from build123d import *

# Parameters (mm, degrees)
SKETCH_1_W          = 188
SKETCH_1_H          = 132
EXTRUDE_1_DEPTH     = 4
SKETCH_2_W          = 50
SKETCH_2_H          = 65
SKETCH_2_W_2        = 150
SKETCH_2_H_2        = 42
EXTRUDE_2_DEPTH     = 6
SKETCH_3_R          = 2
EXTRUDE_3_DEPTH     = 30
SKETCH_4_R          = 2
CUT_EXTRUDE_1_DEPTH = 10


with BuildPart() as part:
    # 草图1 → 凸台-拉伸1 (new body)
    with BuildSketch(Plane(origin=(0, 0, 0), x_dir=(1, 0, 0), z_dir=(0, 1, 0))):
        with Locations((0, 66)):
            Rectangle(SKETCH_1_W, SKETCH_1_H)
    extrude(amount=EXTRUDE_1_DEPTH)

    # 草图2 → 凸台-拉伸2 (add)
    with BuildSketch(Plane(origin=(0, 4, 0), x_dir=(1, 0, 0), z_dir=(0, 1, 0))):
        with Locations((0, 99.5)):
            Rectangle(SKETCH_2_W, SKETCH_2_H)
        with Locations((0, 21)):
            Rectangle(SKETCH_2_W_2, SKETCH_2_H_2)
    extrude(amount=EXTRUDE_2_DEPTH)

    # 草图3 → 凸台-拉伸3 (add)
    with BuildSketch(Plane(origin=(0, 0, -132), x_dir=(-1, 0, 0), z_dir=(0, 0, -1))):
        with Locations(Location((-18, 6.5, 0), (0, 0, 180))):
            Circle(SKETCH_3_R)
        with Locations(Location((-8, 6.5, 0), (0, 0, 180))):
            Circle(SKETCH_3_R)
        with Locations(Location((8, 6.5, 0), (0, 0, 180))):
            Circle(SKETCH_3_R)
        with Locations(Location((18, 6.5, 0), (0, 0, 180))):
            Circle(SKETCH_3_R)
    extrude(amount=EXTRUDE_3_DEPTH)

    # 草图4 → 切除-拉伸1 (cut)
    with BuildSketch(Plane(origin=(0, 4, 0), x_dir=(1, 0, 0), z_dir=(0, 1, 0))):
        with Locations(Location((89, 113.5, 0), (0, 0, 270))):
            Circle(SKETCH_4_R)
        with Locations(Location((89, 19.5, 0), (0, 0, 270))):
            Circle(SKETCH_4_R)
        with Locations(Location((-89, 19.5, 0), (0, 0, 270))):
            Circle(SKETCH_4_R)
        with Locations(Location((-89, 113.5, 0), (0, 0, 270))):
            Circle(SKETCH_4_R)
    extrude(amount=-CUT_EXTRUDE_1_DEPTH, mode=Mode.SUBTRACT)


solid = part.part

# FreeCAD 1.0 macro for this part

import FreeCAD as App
import Part
import Sketcher
from FreeCAD import Vector
Q = App.Units.Quantity


def add_polygon(sketch, points):
    """Adds a closed chain of lines whose ends are joined by coincident constraints."""
    first, n = sketch.GeometryCount, len(points)
    for a, b in zip(points, points[1:] + points[:1]):
        sketch.addGeometry(Part.LineSegment(App.Vector(*a, 0), App.Vector(*b, 0)), False)
    for i in range(n):
        sketch.addConstraint(Sketcher.Constraint("Coincident", first + i, 2, first + (i + 1) % n, 1))

doc = App.newDocument("Part")
body = doc.addObject("PartDesign::Body", "Body")

# Sketch on XZ plane
sketch1 = body.newObject("Sketcher::SketchObject", "Sketch")
sketch1.AttachmentSupport = (doc.getObject("XZ_Plane"), [""])
sketch1.MapMode = "FlatFace"
add_polygon(sketch1, [(-94, -132), (-94, 0), (94, 0), (94, -132)])  # lines 0-3
sketch1.addConstraint([
    Sketcher.Constraint("Vertical", 0),
    Sketcher.Constraint("Horizontal", 1),
    Sketcher.Constraint("Vertical", 2),
    Sketcher.Constraint("Horizontal", 3),
    Sketcher.Constraint("Symmetric", 0, 2, 1, 2, -1, 1),
    Sketcher.Constraint("DistanceX", 1, 1, 1, 2, Q("188 mm")),
    Sketcher.Constraint("DistanceY", 0, 1, 0, 2, Q("132 mm")),
])
pad1 = body.newObject("PartDesign::Pad", "Pad")
pad1.Profile = sketch1
pad1.Length = 4
pad1.Reversed = True

# Sketch on XZ plane
sketch2 = body.newObject("Sketcher::SketchObject", "Sketch001")
sketch2.AttachmentSupport = (doc.getObject("XZ_Plane"), [""])
sketch2.MapMode = "FlatFace"
sketch2.AttachmentOffset = App.Placement(Vector(0, 0, -4), App.Rotation())
add_polygon(sketch2, [(-25, -132), (-25, -67), (25, -67), (25, -132)])  # lines 0-3
add_polygon(sketch2, [(-75, -42), (-75, 0), (75, 0), (75, -42)])  # lines 4-7
sketch2.addConstraint([
    Sketcher.Constraint("Vertical", 0),
    Sketcher.Constraint("Horizontal", 1),
    Sketcher.Constraint("Vertical", 2),
    Sketcher.Constraint("Horizontal", 3),
    Sketcher.Constraint("Vertical", 4),
    Sketcher.Constraint("Horizontal", 5),
    Sketcher.Constraint("Vertical", 6),
    Sketcher.Constraint("Horizontal", 7),
    Sketcher.Constraint("Symmetric", 4, 2, 5, 2, -1, 1),
    Sketcher.Constraint("DistanceX", 1, 1, 1, 2, Q("50 mm")),
    Sketcher.Constraint("DistanceX", 5, 1, 5, 2, Q("150 mm")),
    Sketcher.Constraint("DistanceY", 0, 1, 0, 2, Q("65 mm")),
    Sketcher.Constraint("DistanceY", 4, 1, 4, 2, Q("42 mm")),
    Sketcher.Constraint("DistanceX", 0, 2, -1, 1, Q("25 mm")),
    Sketcher.Constraint("DistanceY", 0, 2, -1, 1, Q("67 mm")),
])
pad2 = body.newObject("PartDesign::Pad", "Pad001")
pad2.Profile = sketch2
pad2.Length = 6
pad2.Reversed = True

# Sketch on XY plane
sketch3 = body.newObject("Sketcher::SketchObject", "Sketch002")
sketch3.AttachmentSupport = (doc.getObject("XY_Plane"), [""])
sketch3.MapMode = "FlatFace"
sketch3.AttachmentOffset = App.Placement(Vector(0, 0, -132), App.Rotation())
sketch3.addGeometry([
    Part.Circle(Vector(18, 6.5, 0), Vector(0, 0, 1), 2),
    Part.Circle(Vector(8, 6.5, 0), Vector(0, 0, 1), 2),
    Part.Circle(Vector(-8, 6.5, 0), Vector(0, 0, 1), 2),
    Part.Circle(Vector(-18, 6.5, 0), Vector(0, 0, 1), 2),
], False)
sketch3.addConstraint([
    Sketcher.Constraint("Equal", 0, 1),
    Sketcher.Constraint("Equal", 1, 2),
    Sketcher.Constraint("Equal", 2, 3),
    Sketcher.Constraint("Symmetric", 1, 3, 2, 3, -2),
    Sketcher.Constraint("Symmetric", 0, 3, 3, 3, -2),
    Sketcher.Constraint("Horizontal", 0, 3, 1, 3),
    Sketcher.Constraint("Diameter", 0, Q("4 mm")),
    Sketcher.Constraint("DistanceX", -1, 1, 0, 3, Q("18 mm")),
    Sketcher.Constraint("DistanceX", -1, 1, 1, 3, Q("8 mm")),
    Sketcher.Constraint("DistanceY", -1, 1, 0, 3, Q("6.5 mm")),
])
pad3 = body.newObject("PartDesign::Pad", "Pad002")
pad3.Profile = sketch3
pad3.Length = 30
pad3.Reversed = True

# Sketch on XZ plane
sketch4 = body.newObject("Sketcher::SketchObject", "Sketch003")
sketch4.AttachmentSupport = (doc.getObject("XZ_Plane"), [""])
sketch4.MapMode = "FlatFace"
sketch4.AttachmentOffset = App.Placement(Vector(0, 0, -4), App.Rotation())
sketch4.addGeometry([
    Part.Circle(Vector(89, -113.5, 0), Vector(0, 0, 1), 2),
    Part.Circle(Vector(89, -19.5, 0), Vector(0, 0, 1), 2),
    Part.Circle(Vector(-89, -19.5, 0), Vector(0, 0, 1), 2),
    Part.Circle(Vector(-89, -113.5, 0), Vector(0, 0, 1), 2),
], False)
sketch4.addConstraint([
    Sketcher.Constraint("Equal", 0, 1),
    Sketcher.Constraint("Equal", 1, 2),
    Sketcher.Constraint("Equal", 2, 3),
    Sketcher.Constraint("Symmetric", 1, 3, 2, 3, -2),
    Sketcher.Constraint("Symmetric", 0, 3, 3, 3, -2),
    Sketcher.Constraint("Vertical", 0, 3, 1, 3),
    Sketcher.Constraint("Diameter", 0, Q("4 mm")),
    Sketcher.Constraint("DistanceX", -1, 1, 0, 3, Q("89 mm")),
    Sketcher.Constraint("DistanceY", 0, 3, 1, 3, Q("94 mm")),
    Sketcher.Constraint("DistanceY", 0, 3, -1, 1, Q("113.5 mm")),
])
pocket1 = body.newObject("PartDesign::Pocket", "Pocket")
pocket1.Profile = sketch4
pocket1.Length = 10
pocket1.Reversed = True

doc.recompute()
